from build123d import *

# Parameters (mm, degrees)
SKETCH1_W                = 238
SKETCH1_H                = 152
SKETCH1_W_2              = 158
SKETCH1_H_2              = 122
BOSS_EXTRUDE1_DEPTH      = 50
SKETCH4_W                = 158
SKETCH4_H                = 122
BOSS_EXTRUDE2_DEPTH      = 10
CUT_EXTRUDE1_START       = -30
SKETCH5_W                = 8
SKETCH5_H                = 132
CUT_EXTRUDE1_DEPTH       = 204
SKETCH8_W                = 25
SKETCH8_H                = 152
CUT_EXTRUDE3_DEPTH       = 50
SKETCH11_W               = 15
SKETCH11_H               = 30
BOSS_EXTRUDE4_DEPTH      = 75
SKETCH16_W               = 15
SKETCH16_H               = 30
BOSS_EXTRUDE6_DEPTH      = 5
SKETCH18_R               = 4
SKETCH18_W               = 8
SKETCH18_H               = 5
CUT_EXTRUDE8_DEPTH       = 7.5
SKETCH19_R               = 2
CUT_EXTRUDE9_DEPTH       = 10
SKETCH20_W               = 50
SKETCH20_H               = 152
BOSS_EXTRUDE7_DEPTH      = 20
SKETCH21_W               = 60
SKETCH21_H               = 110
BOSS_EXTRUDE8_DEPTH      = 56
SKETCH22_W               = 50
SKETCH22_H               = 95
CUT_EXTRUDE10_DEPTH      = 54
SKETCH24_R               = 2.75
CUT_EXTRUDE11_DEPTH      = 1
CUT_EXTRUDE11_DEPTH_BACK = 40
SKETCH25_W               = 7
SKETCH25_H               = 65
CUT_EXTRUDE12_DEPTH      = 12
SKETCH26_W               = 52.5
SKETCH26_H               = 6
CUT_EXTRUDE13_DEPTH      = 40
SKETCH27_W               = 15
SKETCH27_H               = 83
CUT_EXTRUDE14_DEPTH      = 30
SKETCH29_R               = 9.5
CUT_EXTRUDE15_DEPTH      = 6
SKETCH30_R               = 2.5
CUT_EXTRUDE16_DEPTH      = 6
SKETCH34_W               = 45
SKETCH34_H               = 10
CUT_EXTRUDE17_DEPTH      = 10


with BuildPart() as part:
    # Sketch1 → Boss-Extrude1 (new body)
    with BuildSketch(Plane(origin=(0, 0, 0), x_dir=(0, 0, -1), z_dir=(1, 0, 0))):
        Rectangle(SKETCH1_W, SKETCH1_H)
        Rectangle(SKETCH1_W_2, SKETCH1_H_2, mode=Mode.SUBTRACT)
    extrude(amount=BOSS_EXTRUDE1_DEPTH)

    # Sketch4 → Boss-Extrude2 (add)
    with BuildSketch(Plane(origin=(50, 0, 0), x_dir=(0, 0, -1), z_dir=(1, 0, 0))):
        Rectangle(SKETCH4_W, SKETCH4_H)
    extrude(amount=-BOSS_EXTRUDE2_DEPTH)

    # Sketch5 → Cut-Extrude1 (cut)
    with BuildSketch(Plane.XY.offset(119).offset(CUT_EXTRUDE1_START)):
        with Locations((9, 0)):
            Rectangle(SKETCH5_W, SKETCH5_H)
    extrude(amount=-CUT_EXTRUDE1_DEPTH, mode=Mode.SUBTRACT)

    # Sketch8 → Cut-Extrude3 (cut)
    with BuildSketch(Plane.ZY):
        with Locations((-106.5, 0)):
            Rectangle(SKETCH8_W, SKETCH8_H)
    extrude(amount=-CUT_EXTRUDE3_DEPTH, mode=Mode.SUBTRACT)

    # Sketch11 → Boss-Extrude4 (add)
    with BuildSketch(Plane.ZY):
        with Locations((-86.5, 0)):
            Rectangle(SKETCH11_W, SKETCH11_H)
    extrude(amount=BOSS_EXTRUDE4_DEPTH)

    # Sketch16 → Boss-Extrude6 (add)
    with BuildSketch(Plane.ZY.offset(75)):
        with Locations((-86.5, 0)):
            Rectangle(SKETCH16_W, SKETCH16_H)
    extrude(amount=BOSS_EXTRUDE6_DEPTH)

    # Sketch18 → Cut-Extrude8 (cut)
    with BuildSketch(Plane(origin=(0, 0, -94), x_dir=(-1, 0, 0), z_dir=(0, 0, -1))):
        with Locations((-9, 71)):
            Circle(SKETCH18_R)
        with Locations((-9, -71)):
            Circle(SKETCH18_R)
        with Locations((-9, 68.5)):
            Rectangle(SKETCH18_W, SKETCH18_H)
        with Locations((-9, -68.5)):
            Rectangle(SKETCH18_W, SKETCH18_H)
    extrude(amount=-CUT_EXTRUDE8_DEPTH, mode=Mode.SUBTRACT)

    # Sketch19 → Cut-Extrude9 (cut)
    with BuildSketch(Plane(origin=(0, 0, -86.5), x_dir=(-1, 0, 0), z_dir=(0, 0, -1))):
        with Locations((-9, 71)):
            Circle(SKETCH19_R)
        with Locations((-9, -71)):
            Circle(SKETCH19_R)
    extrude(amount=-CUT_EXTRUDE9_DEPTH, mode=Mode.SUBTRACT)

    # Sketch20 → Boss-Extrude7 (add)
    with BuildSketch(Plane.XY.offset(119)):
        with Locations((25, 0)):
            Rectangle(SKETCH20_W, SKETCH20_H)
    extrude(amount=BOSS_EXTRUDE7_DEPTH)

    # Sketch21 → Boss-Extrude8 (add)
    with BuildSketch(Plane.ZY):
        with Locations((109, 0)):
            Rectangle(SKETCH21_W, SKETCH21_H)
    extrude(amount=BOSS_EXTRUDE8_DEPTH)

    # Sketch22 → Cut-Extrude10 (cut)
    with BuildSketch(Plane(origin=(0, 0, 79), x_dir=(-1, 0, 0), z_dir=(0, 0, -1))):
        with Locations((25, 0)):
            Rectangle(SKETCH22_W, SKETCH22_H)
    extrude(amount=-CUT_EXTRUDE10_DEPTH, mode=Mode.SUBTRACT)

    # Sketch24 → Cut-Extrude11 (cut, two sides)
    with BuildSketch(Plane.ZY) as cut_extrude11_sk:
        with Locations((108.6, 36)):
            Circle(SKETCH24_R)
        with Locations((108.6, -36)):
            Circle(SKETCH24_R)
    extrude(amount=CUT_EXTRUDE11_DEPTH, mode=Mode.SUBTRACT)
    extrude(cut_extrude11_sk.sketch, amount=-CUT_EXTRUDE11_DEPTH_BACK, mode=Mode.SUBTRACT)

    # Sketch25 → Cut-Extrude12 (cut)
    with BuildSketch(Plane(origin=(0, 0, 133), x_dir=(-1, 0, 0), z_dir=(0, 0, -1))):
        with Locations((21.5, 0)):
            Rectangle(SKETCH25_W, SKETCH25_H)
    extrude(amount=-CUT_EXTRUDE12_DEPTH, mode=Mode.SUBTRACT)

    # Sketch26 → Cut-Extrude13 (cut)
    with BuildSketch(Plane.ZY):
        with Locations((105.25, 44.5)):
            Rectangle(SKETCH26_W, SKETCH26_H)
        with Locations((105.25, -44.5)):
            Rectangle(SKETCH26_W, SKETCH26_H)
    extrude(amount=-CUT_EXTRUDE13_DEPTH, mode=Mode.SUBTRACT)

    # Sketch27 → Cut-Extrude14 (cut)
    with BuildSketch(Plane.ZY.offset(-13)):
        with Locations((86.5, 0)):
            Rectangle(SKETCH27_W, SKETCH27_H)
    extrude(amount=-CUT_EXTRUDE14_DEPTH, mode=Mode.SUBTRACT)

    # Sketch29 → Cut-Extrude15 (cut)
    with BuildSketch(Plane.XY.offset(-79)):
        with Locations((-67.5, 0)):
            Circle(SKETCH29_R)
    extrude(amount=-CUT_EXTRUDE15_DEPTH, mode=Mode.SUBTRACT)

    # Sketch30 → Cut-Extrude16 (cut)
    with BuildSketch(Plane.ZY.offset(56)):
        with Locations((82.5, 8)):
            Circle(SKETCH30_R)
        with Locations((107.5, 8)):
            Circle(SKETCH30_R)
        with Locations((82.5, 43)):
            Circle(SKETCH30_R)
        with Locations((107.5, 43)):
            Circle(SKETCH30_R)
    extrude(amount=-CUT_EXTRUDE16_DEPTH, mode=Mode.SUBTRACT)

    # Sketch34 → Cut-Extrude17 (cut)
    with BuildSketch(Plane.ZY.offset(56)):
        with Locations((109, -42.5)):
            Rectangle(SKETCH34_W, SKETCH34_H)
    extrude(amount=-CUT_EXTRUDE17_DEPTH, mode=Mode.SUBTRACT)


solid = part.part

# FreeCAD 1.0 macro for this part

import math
import FreeCAD as App
import Part
import Sketcher

V = App.Vector

doc = App.newDocument("Part")
body = doc.addObject("PartDesign::Body", "Body")

# Sketch on YZ plane
sketch1 = body.newObject("Sketcher::SketchObject", "Sketch")
sketch1.AttachmentSupport = (doc.getObject("YZ_Plane"), [""])
sketch1.MapMode = "FlatFace"
sketch1.addGeometry(Part.LineSegment(V(76, 119, 0), V(-76, 119, 0)), False)
sketch1.addGeometry(Part.LineSegment(V(-76, 119, 0), V(-76, -119, 0)), False)
sketch1.addGeometry(Part.LineSegment(V(-76, -119, 0), V(76, -119, 0)), False)
sketch1.addGeometry(Part.LineSegment(V(76, -119, 0), V(76, 119, 0)), False)
sketch1.addGeometry(Part.LineSegment(V(-61, -79, 0), V(-61, 79, 0)), False)
sketch1.addGeometry(Part.LineSegment(V(-61, 79, 0), V(61, 79, 0)), False)
sketch1.addGeometry(Part.LineSegment(V(61, 79, 0), V(61, -79, 0)), False)
sketch1.addGeometry(Part.LineSegment(V(61, -79, 0), V(-61, -79, 0)), False)
sketch1.addConstraint(Sketcher.Constraint("Coincident", 0, 2, 1, 1))
sketch1.addConstraint(Sketcher.Constraint("Coincident", 1, 2, 2, 1))
sketch1.addConstraint(Sketcher.Constraint("Coincident", 2, 2, 3, 1))
sketch1.addConstraint(Sketcher.Constraint("Coincident", 3, 2, 0, 1))
sketch1.addConstraint(Sketcher.Constraint("Coincident", 4, 2, 5, 1))
sketch1.addConstraint(Sketcher.Constraint("Coincident", 5, 2, 6, 1))
sketch1.addConstraint(Sketcher.Constraint("Coincident", 6, 2, 7, 1))
sketch1.addConstraint(Sketcher.Constraint("Coincident", 7, 2, 4, 1))
sketch1.addConstraint(Sketcher.Constraint("Horizontal", 0))
sketch1.addConstraint(Sketcher.Constraint("Vertical", 1))
sketch1.addConstraint(Sketcher.Constraint("Horizontal", 2))
sketch1.addConstraint(Sketcher.Constraint("Vertical", 3))
sketch1.addConstraint(Sketcher.Constraint("Vertical", 4))
sketch1.addConstraint(Sketcher.Constraint("Horizontal", 5))
sketch1.addConstraint(Sketcher.Constraint("Vertical", 6))
sketch1.addConstraint(Sketcher.Constraint("Horizontal", 7))
sketch1.addConstraint(Sketcher.Constraint("Symmetric", 0, 2, 2, 2, -1, 1))
sketch1.addConstraint(Sketcher.Constraint("Symmetric", 4, 2, 6, 2, -1, 1))
sketch1.addConstraint(Sketcher.Constraint("DistanceX", 0, 2, 0, 1, 152.0))
sketch1.addConstraint(Sketcher.Constraint("DistanceX", 5, 1, 5, 2, 122.0))
sketch1.addConstraint(Sketcher.Constraint("DistanceY", 1, 2, 1, 1, 238.0))
sketch1.addConstraint(Sketcher.Constraint("DistanceY", 4, 1, 4, 2, 158.0))
pad1 = body.newObject("PartDesign::Pad", "Pad")
pad1.Profile = sketch1
pad1.Length = 50

# Sketch on YZ plane
sketch2 = body.newObject("Sketcher::SketchObject", "Sketch001")
sketch2.AttachmentSupport = (doc.getObject("YZ_Plane"), [""])
sketch2.MapMode = "FlatFace"
sketch2.AttachmentOffset = App.Placement(V(0, 0, 50), App.Rotation())
sketch2.addGeometry(Part.LineSegment(V(61, 79, 0), V(-61, 79, 0)), False)
sketch2.addGeometry(Part.LineSegment(V(-61, 79, 0), V(-61, -79, 0)), False)
sketch2.addGeometry(Part.LineSegment(V(-61, -79, 0), V(61, -79, 0)), False)
sketch2.addGeometry(Part.LineSegment(V(61, -79, 0), V(61, 79, 0)), False)
sketch2.addConstraint(Sketcher.Constraint("Coincident", 0, 2, 1, 1))
sketch2.addConstraint(Sketcher.Constraint("Coincident", 1, 2, 2, 1))
sketch2.addConstraint(Sketcher.Constraint("Coincident", 2, 2, 3, 1))
sketch2.addConstraint(Sketcher.Constraint("Coincident", 3, 2, 0, 1))
sketch2.addConstraint(Sketcher.Constraint("Horizontal", 0))
sketch2.addConstraint(Sketcher.Constraint("Vertical", 1))
sketch2.addConstraint(Sketcher.Constraint("Horizontal", 2))
sketch2.addConstraint(Sketcher.Constraint("Vertical", 3))
sketch2.addConstraint(Sketcher.Constraint("Symmetric", 0, 2, 2, 2, -1, 1))
sketch2.addConstraint(Sketcher.Constraint("DistanceX", 0, 2, 0, 1, 122.0))
sketch2.addConstraint(Sketcher.Constraint("DistanceY", 1, 2, 1, 1, 158.0))
pad2 = body.newObject("PartDesign::Pad", "Pad001")
pad2.Profile = sketch2
pad2.Length = 10
pad2.Reversed = True

# Sketch on XY plane
sketch3 = body.newObject("Sketcher::SketchObject", "Sketch002")
sketch3.AttachmentSupport = (doc.getObject("XY_Plane"), [""])
sketch3.MapMode = "FlatFace"
sketch3.AttachmentOffset = App.Placement(V(0, 0, 89), App.Rotation())
sketch3.addGeometry(Part.LineSegment(V(5, 66, 0), V(5, -66, 0)), False)
sketch3.addGeometry(Part.LineSegment(V(5, -66, 0), V(13, -66, 0)), False)
sketch3.addGeometry(Part.LineSegment(V(13, -66, 0), V(13, 66, 0)), False)
sketch3.addGeometry(Part.LineSegment(V(13, 66, 0), V(5, 66, 0)), False)
sketch3.addConstraint(Sketcher.Constraint("Coincident", 0, 2, 1, 1))
sketch3.addConstraint(Sketcher.Constraint("Coincident", 1, 2, 2, 1))
sketch3.addConstraint(Sketcher.Constraint("Coincident", 2, 2, 3, 1))
sketch3.addConstraint(Sketcher.Constraint("Coincident", 3, 2, 0, 1))
sketch3.addConstraint(Sketcher.Constraint("Vertical", 0))
sketch3.addConstraint(Sketcher.Constraint("Horizontal", 1))
sketch3.addConstraint(Sketcher.Constraint("Vertical", 2))
sketch3.addConstraint(Sketcher.Constraint("Horizontal", 3))
sketch3.addConstraint(Sketcher.Constraint("DistanceX", 1, 1, 1, 2, 8.0))
sketch3.addConstraint(Sketcher.Constraint("DistanceY", 0, 2, 0, 1, 132.0))
sketch3.addConstraint(Sketcher.Constraint("DistanceX", -1, 1, 0, 2, 5.0))
sketch3.addConstraint(Sketcher.Constraint("DistanceY", 0, 2, -1, 1, 66.0))
pocket1 = body.newObject("PartDesign::Pocket", "Pocket")
pocket1.Profile = sketch3
pocket1.Length = 204

# Sketch on YZ plane
sketch4 = body.newObject("Sketcher::SketchObject", "Sketch003")
sketch4.AttachmentSupport = (doc.getObject("YZ_Plane"), [""])
sketch4.MapMode = "FlatFace"
sketch4.addGeometry(Part.LineSegment(V(76, -119, 0), V(-76, -119, 0)), False)
sketch4.addGeometry(Part.LineSegment(V(-76, -119, 0), V(-76, -94, 0)), False)
sketch4.addGeometry(Part.LineSegment(V(-76, -94, 0), V(76, -94, 0)), False)
sketch4.addGeometry(Part.LineSegment(V(76, -94, 0), V(76, -119, 0)), False)
sketch4.addConstraint(Sketcher.Constraint("Coincident", 0, 2, 1, 1))
sketch4.addConstraint(Sketcher.Constraint("Coincident", 1, 2, 2, 1))
sketch4.addConstraint(Sketcher.Constraint("Coincident", 2, 2, 3, 1))
sketch4.addConstraint(Sketcher.Constraint("Coincident", 3, 2, 0, 1))
sketch4.addConstraint(Sketcher.Constraint("Horizontal", 0))
sketch4.addConstraint(Sketcher.Constraint("Vertical", 1))
sketch4.addConstraint(Sketcher.Constraint("Horizontal", 2))
sketch4.addConstraint(Sketcher.Constraint("Vertical", 3))
sketch4.addConstraint(Sketcher.Constraint("DistanceX", 0, 2, 0, 1, 152.0))
sketch4.addConstraint(Sketcher.Constraint("DistanceY", 1, 1, 1, 2, 25.0))
sketch4.addConstraint(Sketcher.Constraint("DistanceX", 0, 2, -1, 1, 76.0))
sketch4.addConstraint(Sketcher.Constraint("DistanceY", 0, 2, -1, 1, 119.0))
pocket2 = body.newObject("PartDesign::Pocket", "Pocket001")
pocket2.Profile = sketch4
pocket2.Length = 50
pocket2.Reversed = True

# Sketch on YZ plane
sketch5 = body.newObject("Sketcher::SketchObject", "Sketch004")
sketch5.AttachmentSupport = (doc.getObject("YZ_Plane"), [""])
sketch5.MapMode = "FlatFace"
sketch5.addGeometry(Part.LineSegment(V(15, -94, 0), V(-15, -94, 0)), False)
sketch5.addGeometry(Part.LineSegment(V(-15, -94, 0), V(-15, -79, 0)), False)
sketch5.addGeometry(Part.LineSegment(V(-15, -79, 0), V(15, -79, 0)), False)
sketch5.addGeometry(Part.LineSegment(V(15, -79, 0), V(15, -94, 0)), False)
sketch5.addConstraint(Sketcher.Constraint("Coincident", 0, 2, 1, 1))
sketch5.addConstraint(Sketcher.Constraint("Coincident", 1, 2, 2, 1))
sketch5.addConstraint(Sketcher.Constraint("Coincident", 2, 2, 3, 1))
sketch5.addConstraint(Sketcher.Constraint("Coincident", 3, 2, 0, 1))
sketch5.addConstraint(Sketcher.Constraint("Horizontal", 0))
sketch5.addConstraint(Sketcher.Constraint("Vertical", 1))
sketch5.addConstraint(Sketcher.Constraint("Horizontal", 2))
sketch5.addConstraint(Sketcher.Constraint("Vertical", 3))
sketch5.addConstraint(Sketcher.Constraint("DistanceX", 0, 2, 0, 1, 30.0))
sketch5.addConstraint(Sketcher.Constraint("DistanceY", 1, 1, 1, 2, 15.0))
sketch5.addConstraint(Sketcher.Constraint("DistanceX", 0, 2, -1, 1, 15.0))
sketch5.addConstraint(Sketcher.Constraint("DistanceY", 0, 2, -1, 1, 94.0))
pad3 = body.newObject("PartDesign::Pad", "Pad002")
pad3.Profile = sketch5
pad3.Length = 75
pad3.Reversed = True

# Sketch on YZ plane
sketch6 = body.newObject("Sketcher::SketchObject", "Sketch005")
sketch6.AttachmentSupport = (doc.getObject("YZ_Plane"), [""])
sketch6.MapMode = "FlatFace"
sketch6.AttachmentOffset = App.Placement(V(0, 0, -75), App.Rotation())
sketch6.addGeometry(Part.LineSegment(V(15, -94, 0), V(-15, -94, 0)), False)
sketch6.addGeometry(Part.LineSegment(V(-15, -94, 0), V(-15, -79, 0)), False)
sketch6.addGeometry(Part.LineSegment(V(-15, -79, 0), V(15, -79, 0)), False)
sketch6.addGeometry(Part.LineSegment(V(15, -79, 0), V(15, -94, 0)), False)
sketch6.addConstraint(Sketcher.Constraint("Coincident", 0, 2, 1, 1))
sketch6.addConstraint(Sketcher.Constraint("Coincident", 1, 2, 2, 1))
sketch6.addConstraint(Sketcher.Constraint("Coincident", 2, 2, 3, 1))
sketch6.addConstraint(Sketcher.Constraint("Coincident", 3, 2, 0, 1))
sketch6.addConstraint(Sketcher.Constraint("Horizontal", 0))
sketch6.addConstraint(Sketcher.Constraint("Vertical", 1))
sketch6.addConstraint(Sketcher.Constraint("Horizontal", 2))
sketch6.addConstraint(Sketcher.Constraint("Vertical", 3))
sketch6.addConstraint(Sketcher.Constraint("DistanceX", 0, 2, 0, 1, 30.0))
sketch6.addConstraint(Sketcher.Constraint("DistanceY", 1, 1, 1, 2, 15.0))
sketch6.addConstraint(Sketcher.Constraint("DistanceX", 0, 2, -1, 1, 15.0))
sketch6.addConstraint(Sketcher.Constraint("DistanceY", 0, 2, -1, 1, 94.0))
pad4 = body.newObject("PartDesign::Pad", "Pad003")
pad4.Profile = sketch6
pad4.Length = 5
pad4.Reversed = True

# Sketch on XY plane
sketch7 = body.newObject("Sketcher::SketchObject", "Sketch006")
sketch7.AttachmentSupport = (doc.getObject("XY_Plane"), [""])
sketch7.MapMode = "FlatFace"
sketch7.AttachmentOffset = App.Placement(V(0, 0, -94), App.Rotation())
sketch7.addGeometry(Part.ArcOfCircle(Part.Circle(V(9, 71, 0), V(0, 0, 1), 4), math.radians(0), math.radians(180)), False)
sketch7.addGeometry(Part.LineSegment(V(13, 71, 0), V(13, 66, 0)), False)
sketch7.addGeometry(Part.LineSegment(V(13, 66, 0), V(5, 66, 0)), False)
sketch7.addGeometry(Part.LineSegment(V(5, 66, 0), V(5, 71, 0)), False)
sketch7.addGeometry(Part.ArcOfCircle(Part.Circle(V(9, -71, 0), V(0, 0, 1), 4), math.radians(180), math.radians(360)), False)
sketch7.addGeometry(Part.LineSegment(V(5, -71, 0), V(5, -66, 0)), False)
sketch7.addGeometry(Part.LineSegment(V(5, -66, 0), V(13, -66, 0)), False)
sketch7.addGeometry(Part.LineSegment(V(13, -66, 0), V(13, -71, 0)), False)
sketch7.addConstraint(Sketcher.Constraint("Tangent", 0, 1, 1, 1))
sketch7.addConstraint(Sketcher.Constraint("Coincident", 1, 2, 2, 1))
sketch7.addConstraint(Sketcher.Constraint("Coincident", 2, 2, 3, 1))
sketch7.addConstraint(Sketcher.Constraint("Tangent", 3, 2, 0, 2))
sketch7.addConstraint(Sketcher.Constraint("Tangent", 4, 1, 5, 1))
sketch7.addConstraint(Sketcher.Constraint("Coincident", 5, 2, 6, 1))
sketch7.addConstraint(Sketcher.Constraint("Coincident", 6, 2, 7, 1))
sketch7.addConstraint(Sketcher.Constraint("Tangent", 7, 2, 4, 2))
sketch7.addConstraint(Sketcher.Constraint("Vertical", 1))
sketch7.addConstraint(Sketcher.Constraint("Horizontal", 2))
sketch7.addConstraint(Sketcher.Constraint("Vertical", 3))
sketch7.addConstraint(Sketcher.Constraint("Vertical", 5))
sketch7.addConstraint(Sketcher.Constraint("Horizontal", 6))
sketch7.addConstraint(Sketcher.Constraint("Vertical", 7))
sketch7.addConstraint(Sketcher.Constraint("Equal", 0, 4))
sketch7.addConstraint(Sketcher.Constraint("Symmetric", 0, 3, 4, 3, -1))
sketch7.addConstraint(Sketcher.Constraint("Equal", 3, 5))
sketch7.addConstraint(Sketcher.Constraint("Radius", 0, 4.0))
sketch7.addConstraint(Sketcher.Constraint("DistanceY", 1, 2, 1, 1, 5.0))
sketch7.addConstraint(Sketcher.Constraint("DistanceX", -1, 1, 0, 3, 9.0))
sketch7.addConstraint(Sketcher.Constraint("DistanceY", -1, 1, 0, 3, 71.0))
pocket3 = body.newObject("PartDesign::Pocket", "Pocket002")
pocket3.Profile = sketch7
pocket3.Length = 7.5
pocket3.Reversed = True

# Sketch on XY plane
sketch8 = body.newObject("Sketcher::SketchObject", "Sketch007")
sketch8.AttachmentSupport = (doc.getObject("XY_Plane"), [""])
sketch8.MapMode = "FlatFace"
sketch8.AttachmentOffset = App.Placement(V(0, 0, -86.5), App.Rotation())
sketch8.addGeometry(Part.Circle(V(9, 71, 0), V(0, 0, 1), 2), False)
sketch8.addGeometry(Part.Circle(V(9, -71, 0), V(0, 0, 1), 2), False)
sketch8.addConstraint(Sketcher.Constraint("Equal", 0, 1))
sketch8.addConstraint(Sketcher.Constraint("Symmetric", 0, 3, 1, 3, -1))
sketch8.addConstraint(Sketcher.Constraint("Diameter", 0, 4.0))
sketch8.addConstraint(Sketcher.Constraint("DistanceX", -1, 1, 0, 3, 9.0))
sketch8.addConstraint(Sketcher.Constraint("DistanceY", -1, 1, 0, 3, 71.0))
pocket4 = body.newObject("PartDesign::Pocket", "Pocket003")
pocket4.Profile = sketch8
pocket4.Length = 10
pocket4.Reversed = True

# Sketch on XY plane
sketch9 = body.newObject("Sketcher::SketchObject", "Sketch008")
sketch9.AttachmentSupport = (doc.getObject("XY_Plane"), [""])
sketch9.MapMode = "FlatFace"
sketch9.AttachmentOffset = App.Placement(V(0, 0, 119), App.Rotation())
sketch9.addGeometry(Part.LineSegment(V(0, 76, 0), V(0, -76, 0)), False)
sketch9.addGeometry(Part.LineSegment(V(0, -76, 0), V(50, -76, 0)), False)
sketch9.addGeometry(Part.LineSegment(V(50, -76, 0), V(50, 76, 0)), False)
sketch9.addGeometry(Part.LineSegment(V(50, 76, 0), V(0, 76, 0)), False)
sketch9.addConstraint(Sketcher.Constraint("Coincident", 0, 2, 1, 1))
sketch9.addConstraint(Sketcher.Constraint("Coincident", 1, 2, 2, 1))
sketch9.addConstraint(Sketcher.Constraint("Coincident", 2, 2, 3, 1))
sketch9.addConstraint(Sketcher.Constraint("Coincident", 3, 2, 0, 1))
sketch9.addConstraint(Sketcher.Constraint("Vertical", 0))
sketch9.addConstraint(Sketcher.Constraint("Horizontal", 1))
sketch9.addConstraint(Sketcher.Constraint("Vertical", 2))
sketch9.addConstraint(Sketcher.Constraint("Horizontal", 3))
sketch9.addConstraint(Sketcher.Constraint("Symmetric", 0, 2, 3, 2, -1, 1))
sketch9.addConstraint(Sketcher.Constraint("DistanceX", 1, 1, 1, 2, 50.0))
sketch9.addConstraint(Sketcher.Constraint("DistanceY", 0, 2, 0, 1, 152.0))
pad5 = body.newObject("PartDesign::Pad", "Pad004")
pad5.Profile = sketch9
pad5.Length = 20

# Sketch on YZ plane
sketch10 = body.newObject("Sketcher::SketchObject", "Sketch009")
sketch10.AttachmentSupport = (doc.getObject("YZ_Plane"), [""])
sketch10.MapMode = "FlatFace"
sketch10.addGeometry(Part.LineSegment(V(55, 79, 0), V(-55, 79, 0)), False)
sketch10.addGeometry(Part.LineSegment(V(-55, 79, 0), V(-55, 139, 0)), False)
sketch10.addGeometry(Part.LineSegment(V(-55, 139, 0), V(55, 139, 0)), False)
sketch10.addGeometry(Part.LineSegment(V(55, 139, 0), V(55, 79, 0)), False)
sketch10.addConstraint(Sketcher.Constraint("Coincident", 0, 2, 1, 1))
sketch10.addConstraint(Sketcher.Constraint("Coincident", 1, 2, 2, 1))
sketch10.addConstraint(Sketcher.Constraint("Coincident", 2, 2, 3, 1))
sketch10.addConstraint(Sketcher.Constraint("Coincident", 3, 2, 0, 1))
sketch10.addConstraint(Sketcher.Constraint("Horizontal", 0))
sketch10.addConstraint(Sketcher.Constraint("Vertical", 1))
sketch10.addConstraint(Sketcher.Constraint("Horizontal", 2))
sketch10.addConstraint(Sketcher.Constraint("Vertical", 3))
sketch10.addConstraint(Sketcher.Constraint("DistanceX", 0, 2, 0, 1, 110.0))
sketch10.addConstraint(Sketcher.Constraint("DistanceY", 1, 1, 1, 2, 60.0))
sketch10.addConstraint(Sketcher.Constraint("DistanceX", 0, 2, -1, 1, 55.0))
sketch10.addConstraint(Sketcher.Constraint("DistanceY", -1, 1, 0, 2, 79.0))
pad6 = body.newObject("PartDesign::Pad", "Pad005")
pad6.Profile = sketch10
pad6.Length = 56
pad6.Reversed = True

# Sketch on XY plane
sketch11 = body.newObject("Sketcher::SketchObject", "Sketch010")
sketch11.AttachmentSupport = (doc.getObject("XY_Plane"), [""])
sketch11.MapMode = "FlatFace"
sketch11.AttachmentOffset = App.Placement(V(0, 0, 79), App.Rotation())
sketch11.addGeometry(Part.LineSegment(V(0, 48, 0), V(0, -48, 0)), False)
sketch11.addGeometry(Part.LineSegment(V(0, -48, 0), V(-50, -48, 0)), False)
sketch11.addGeometry(Part.LineSegment(V(-50, -48, 0), V(-50, 48, 0)), False)
sketch11.addGeometry(Part.LineSegment(V(-50, 48, 0), V(0, 48, 0)), False)
sketch11.addConstraint(Sketcher.Constraint("Coincident", 0, 2, 1, 1))
sketch11.addConstraint(Sketcher.Constraint("Coincident", 1, 2, 2, 1))
sketch11.addConstraint(Sketcher.Constraint("Coincident", 2, 2, 3, 1))
sketch11.addConstraint(Sketcher.Constraint("Coincident", 3, 2, 0, 1))
sketch11.addConstraint(Sketcher.Constraint("Vertical", 0))
sketch11.addConstraint(Sketcher.Constraint("Horizontal", 1))
sketch11.addConstraint(Sketcher.Constraint("Vertical", 2))
sketch11.addConstraint(Sketcher.Constraint("Horizontal", 3))
sketch11.addConstraint(Sketcher.Constraint("Symmetric", 0, 2, 3, 2, -1, 1))
sketch11.addConstraint(Sketcher.Constraint("DistanceX", 1, 2, 1, 1, 50.0))
sketch11.addConstraint(Sketcher.Constraint("DistanceY", 0, 2, 0, 1, 95.0))
pocket5 = body.newObject("PartDesign::Pocket", "Pocket004")
pocket5.Profile = sketch11
pocket5.Length = 54
pocket5.Reversed = True

# Sketch on YZ plane
sketch12 = body.newObject("Sketcher::SketchObject", "Sketch011")
sketch12.AttachmentSupport = (doc.getObject("YZ_Plane"), [""])
sketch12.MapMode = "FlatFace"
sketch12.addGeometry(Part.Circle(V(36, 108.6, 0), V(0, 0, 1), 2.8), False)
sketch12.addGeometry(Part.Circle(V(-36, 108.6, 0), V(0, 0, 1), 2.8), False)
sketch12.addConstraint(Sketcher.Constraint("Equal", 0, 1))
sketch12.addConstraint(Sketcher.Constraint("Symmetric", 0, 3, 1, 3, -2))
sketch12.addConstraint(Sketcher.Constraint("Diameter", 0, 5.5))
sketch12.addConstraint(Sketcher.Constraint("DistanceX", -1, 1, 0, 3, 36.0))
sketch12.addConstraint(Sketcher.Constraint("DistanceY", -1, 1, 0, 3, 108.6))
pocket6 = body.newObject("PartDesign::Pocket", "Pocket005")
pocket6.Profile = sketch12
pocket6.Type = "TwoLengths"
pocket6.Length = 1
pocket6.Length2 = 40

# Sketch on XY plane
sketch13 = body.newObject("Sketcher::SketchObject", "Sketch012")
sketch13.AttachmentSupport = (doc.getObject("XY_Plane"), [""])
sketch13.MapMode = "FlatFace"
sketch13.AttachmentOffset = App.Placement(V(0, 0, 133), App.Rotation())
sketch13.addGeometry(Part.LineSegment(V(-18, 32, 0), V(-18, -32, 0)), False)
sketch13.addGeometry(Part.LineSegment(V(-18, -32, 0), V(-25, -32, 0)), False)
sketch13.addGeometry(Part.LineSegment(V(-25, -32, 0), V(-25, 32, 0)), False)
sketch13.addGeometry(Part.LineSegment(V(-25, 32, 0), V(-18, 32, 0)), False)
sketch13.addConstraint(Sketcher.Constraint("Coincident", 0, 2, 1, 1))
sketch13.addConstraint(Sketcher.Constraint("Coincident", 1, 2, 2, 1))
sketch13.addConstraint(Sketcher.Constraint("Coincident", 2, 2, 3, 1))
sketch13.addConstraint(Sketcher.Constraint("Coincident", 3, 2, 0, 1))
sketch13.addConstraint(Sketcher.Constraint("Vertical", 0))
sketch13.addConstraint(Sketcher.Constraint("Horizontal", 1))
sketch13.addConstraint(Sketcher.Constraint("Vertical", 2))
sketch13.addConstraint(Sketcher.Constraint("Horizontal", 3))
sketch13.addConstraint(Sketcher.Constraint("DistanceX", 1, 2, 1, 1, 7.0))
sketch13.addConstraint(Sketcher.Constraint("DistanceY", 0, 2, 0, 1, 65.0))
sketch13.addConstraint(Sketcher.Constraint("DistanceX", 0, 2, -1, 1, 18.0))
sketch13.addConstraint(Sketcher.Constraint("DistanceY", 0, 2, -1, 1, 32.5))
pocket7 = body.newObject("PartDesign::Pocket", "Pocket006")
pocket7.Profile = sketch13
pocket7.Length = 12
pocket7.Reversed = True

# Sketch on YZ plane
sketch14 = body.newObject("Sketcher::SketchObject", "Sketch013")
sketch14.AttachmentSupport = (doc.getObject("YZ_Plane"), [""])
sketch14.MapMode = "FlatFace"
sketch14.addGeometry(Part.LineSegment(V(48, 79, 0), V(42, 79, 0)), False)
sketch14.addGeometry(Part.LineSegment(V(42, 79, 0), V(42, 132, 0)), False)
sketch14.addGeometry(Part.LineSegment(V(42, 132, 0), V(48, 132, 0)), False)
sketch14.addGeometry(Part.LineSegment(V(48, 132, 0), V(48, 79, 0)), False)
sketch14.addGeometry(Part.LineSegment(V(-42, 79, 0), V(-48, 79, 0)), False)
sketch14.addGeometry(Part.LineSegment(V(-48, 79, 0), V(-48, 132, 0)), False)
sketch14.addGeometry(Part.LineSegment(V(-48, 132, 0), V(-42, 132, 0)), False)
sketch14.addGeometry(Part.LineSegment(V(-42, 132, 0), V(-42, 79, 0)), False)
sketch14.addConstraint(Sketcher.Constraint("Coincident", 0, 2, 1, 1))
sketch14.addConstraint(Sketcher.Constraint("Coincident", 1, 2, 2, 1))
sketch14.addConstraint(Sketcher.Constraint("Coincident", 2, 2, 3, 1))
sketch14.addConstraint(Sketcher.Constraint("Coincident", 3, 2, 0, 1))
sketch14.addConstraint(Sketcher.Constraint("Coincident", 4, 2, 5, 1))
sketch14.addConstraint(Sketcher.Constraint("Coincident", 5, 2, 6, 1))
sketch14.addConstraint(Sketcher.Constraint("Coincident", 6, 2, 7, 1))
sketch14.addConstraint(Sketcher.Constraint("Coincident", 7, 2, 4, 1))
sketch14.addConstraint(Sketcher.Constraint("Horizontal", 0))
sketch14.addConstraint(Sketcher.Constraint("Vertical", 1))
sketch14.addConstraint(Sketcher.Constraint("Horizontal", 2))
sketch14.addConstraint(Sketcher.Constraint("Vertical", 3))
sketch14.addConstraint(Sketcher.Constraint("Horizontal", 4))
sketch14.addConstraint(Sketcher.Constraint("Vertical", 5))
sketch14.addConstraint(Sketcher.Constraint("Horizontal", 6))
sketch14.addConstraint(Sketcher.Constraint("Vertical", 7))
sketch14.addConstraint(Sketcher.Constraint("Symmetric", 3, 2, 4, 2, -2))
sketch14.addConstraint(Sketcher.Constraint("Symmetric", 1, 2, 6, 2, -2))
sketch14.addConstraint(Sketcher.Constraint("DistanceX", 0, 2, 0, 1, 6.0))
sketch14.addConstraint(Sketcher.Constraint("DistanceY", 1, 1, 1, 2, 52.5))
sketch14.addConstraint(Sketcher.Constraint("DistanceY", -1, 1, 0, 2, 79.0))
sketch14.addConstraint(Sketcher.Constraint("DistanceX", 4, 2, 0, 2, 89.0))
pocket8 = body.newObject("PartDesign::Pocket", "Pocket007")
pocket8.Profile = sketch14
pocket8.Length = 40
pocket8.Reversed = True

# Sketch on YZ plane
sketch15 = body.newObject("Sketcher::SketchObject", "Sketch014")
sketch15.AttachmentSupport = (doc.getObject("YZ_Plane"), [""])
sketch15.MapMode = "FlatFace"
sketch15.AttachmentOffset = App.Placement(V(0, 0, 13), App.Rotation())
sketch15.addGeometry(Part.LineSegment(V(42, 79, 0), V(-42, 79, 0)), False)
sketch15.addGeometry(Part.LineSegment(V(-42, 79, 0), V(-42, 94, 0)), False)
sketch15.addGeometry(Part.LineSegment(V(-42, 94, 0), V(42, 94, 0)), False)
sketch15.addGeometry(Part.LineSegment(V(42, 94, 0), V(42, 79, 0)), False)
sketch15.addConstraint(Sketcher.Constraint("Coincident", 0, 2, 1, 1))
sketch15.addConstraint(Sketcher.Constraint("Coincident", 1, 2, 2, 1))
sketch15.addConstraint(Sketcher.Constraint("Coincident", 2, 2, 3, 1))
sketch15.addConstraint(Sketcher.Constraint("Coincident", 3, 2, 0, 1))
sketch15.addConstraint(Sketcher.Constraint("Horizontal", 0))
sketch15.addConstraint(Sketcher.Constraint("Vertical", 1))
sketch15.addConstraint(Sketcher.Constraint("Horizontal", 2))
sketch15.addConstraint(Sketcher.Constraint("Vertical", 3))
sketch15.addConstraint(Sketcher.Constraint("DistanceX", 0, 2, 0, 1, 83.0))
sketch15.addConstraint(Sketcher.Constraint("DistanceY", 1, 1, 1, 2, 15.0))
sketch15.addConstraint(Sketcher.Constraint("DistanceY", -1, 1, 0, 2, 79.0))
sketch15.addConstraint(Sketcher.Constraint("DistanceX", 0, 2, -1, 1, 41.5))
pocket9 = body.newObject("PartDesign::Pocket", "Pocket008")
pocket9.Profile = sketch15
pocket9.Length = 30
pocket9.Reversed = True

# Sketch on XY plane
sketch16 = body.newObject("Sketcher::SketchObject", "Sketch015")
sketch16.AttachmentSupport = (doc.getObject("XY_Plane"), [""])
sketch16.MapMode = "FlatFace"
sketch16.AttachmentOffset = App.Placement(V(0, 0, -79), App.Rotation())
sketch16.addGeometry(Part.Circle(V(-68, 0, 0), V(0, 0, 1), 10), False)
sketch16.addConstraint(Sketcher.Constraint("PointOnObject", 0, 3, -1))
sketch16.addConstraint(Sketcher.Constraint("Diameter", 0, 19.0))
sketch16.addConstraint(Sketcher.Constraint("DistanceX", 0, 3, -1, 1, 67.5))
pocket10 = body.newObject("PartDesign::Pocket", "Pocket009")
pocket10.Profile = sketch16
pocket10.Length = 6

# Sketch on YZ plane
sketch17 = body.newObject("Sketcher::SketchObject", "Sketch016")
sketch17.AttachmentSupport = (doc.getObject("YZ_Plane"), [""])
sketch17.MapMode = "FlatFace"
sketch17.AttachmentOffset = App.Placement(V(0, 0, -56), App.Rotation())
sketch17.addGeometry(Part.Circle(V(8, 82.5, 0), V(0, 0, 1), 2.5), False)
sketch17.addGeometry(Part.Circle(V(8, 107.5, 0), V(0, 0, 1), 2.5), False)
sketch17.addGeometry(Part.Circle(V(43, 82.5, 0), V(0, 0, 1), 2.5), False)
sketch17.addGeometry(Part.Circle(V(43, 107.5, 0), V(0, 0, 1), 2.5), False)
sketch17.addConstraint(Sketcher.Constraint("Equal", 0, 1))
sketch17.addConstraint(Sketcher.Constraint("Equal", 1, 2))
sketch17.addConstraint(Sketcher.Constraint("Equal", 2, 3))
sketch17.addConstraint(Sketcher.Constraint("Horizontal", 0, 3, 2, 3))
sketch17.addConstraint(Sketcher.Constraint("Horizontal", 1, 3, 3, 3))
sketch17.addConstraint(Sketcher.Constraint("Vertical", 0, 3, 1, 3))
sketch17.addConstraint(Sketcher.Constraint("Vertical", 2, 3, 3, 3))
sketch17.addConstraint(Sketcher.Constraint("Diameter", 0, 5.0))
sketch17.addConstraint(Sketcher.Constraint("DistanceX", -1, 1, 0, 3, 8.0))
sketch17.addConstraint(Sketcher.Constraint("DistanceX", -1, 1, 2, 3, 43.0))
sketch17.addConstraint(Sketcher.Constraint("DistanceY", 0, 3, 1, 3, 25.0))
sketch17.addConstraint(Sketcher.Constraint("DistanceY", -1, 1, 0, 3, 82.5))
pocket11 = body.newObject("PartDesign::Pocket", "Pocket010")
pocket11.Profile = sketch17
pocket11.Length = 6
pocket11.Reversed = True

# Sketch on YZ plane
sketch18 = body.newObject("Sketcher::SketchObject", "Sketch017")
sketch18.AttachmentSupport = (doc.getObject("YZ_Plane"), [""])
sketch18.MapMode = "FlatFace"
sketch18.AttachmentOffset = App.Placement(V(0, 0, -56), App.Rotation())
sketch18.addGeometry(Part.LineSegment(V(-38, 86, 0), V(-48, 86, 0)), False)
sketch18.addGeometry(Part.LineSegment(V(-48, 86, 0), V(-48, 132, 0)), False)
sketch18.addGeometry(Part.LineSegment(V(-48, 132, 0), V(-38, 132, 0)), False)
sketch18.addGeometry(Part.LineSegment(V(-38, 132, 0), V(-38, 86, 0)), False)
sketch18.addConstraint(Sketcher.Constraint("Coincident", 0, 2, 1, 1))
sketch18.addConstraint(Sketcher.Constraint("Coincident", 1, 2, 2, 1))
sketch18.addConstraint(Sketcher.Constraint("Coincident", 2, 2, 3, 1))
sketch18.addConstraint(Sketcher.Constraint("Coincident", 3, 2, 0, 1))
sketch18.addConstraint(Sketcher.Constraint("Horizontal", 0))
sketch18.addConstraint(Sketcher.Constraint("Vertical", 1))
sketch18.addConstraint(Sketcher.Constraint("Horizontal", 2))
sketch18.addConstraint(Sketcher.Constraint("Vertical", 3))
sketch18.addConstraint(Sketcher.Constraint("DistanceX", 0, 2, 0, 1, 10.0))
sketch18.addConstraint(Sketcher.Constraint("DistanceY", 1, 1, 1, 2, 45.0))
sketch18.addConstraint(Sketcher.Constraint("DistanceX", 0, 2, -1, 1, 47.5))
sketch18.addConstraint(Sketcher.Constraint("DistanceY", -1, 1, 0, 2, 86.5))
pocket12 = body.newObject("PartDesign::Pocket", "Pocket011")
pocket12.Profile = sketch18
pocket12.Length = 10
pocket12.Reversed = True

doc.recompute()
